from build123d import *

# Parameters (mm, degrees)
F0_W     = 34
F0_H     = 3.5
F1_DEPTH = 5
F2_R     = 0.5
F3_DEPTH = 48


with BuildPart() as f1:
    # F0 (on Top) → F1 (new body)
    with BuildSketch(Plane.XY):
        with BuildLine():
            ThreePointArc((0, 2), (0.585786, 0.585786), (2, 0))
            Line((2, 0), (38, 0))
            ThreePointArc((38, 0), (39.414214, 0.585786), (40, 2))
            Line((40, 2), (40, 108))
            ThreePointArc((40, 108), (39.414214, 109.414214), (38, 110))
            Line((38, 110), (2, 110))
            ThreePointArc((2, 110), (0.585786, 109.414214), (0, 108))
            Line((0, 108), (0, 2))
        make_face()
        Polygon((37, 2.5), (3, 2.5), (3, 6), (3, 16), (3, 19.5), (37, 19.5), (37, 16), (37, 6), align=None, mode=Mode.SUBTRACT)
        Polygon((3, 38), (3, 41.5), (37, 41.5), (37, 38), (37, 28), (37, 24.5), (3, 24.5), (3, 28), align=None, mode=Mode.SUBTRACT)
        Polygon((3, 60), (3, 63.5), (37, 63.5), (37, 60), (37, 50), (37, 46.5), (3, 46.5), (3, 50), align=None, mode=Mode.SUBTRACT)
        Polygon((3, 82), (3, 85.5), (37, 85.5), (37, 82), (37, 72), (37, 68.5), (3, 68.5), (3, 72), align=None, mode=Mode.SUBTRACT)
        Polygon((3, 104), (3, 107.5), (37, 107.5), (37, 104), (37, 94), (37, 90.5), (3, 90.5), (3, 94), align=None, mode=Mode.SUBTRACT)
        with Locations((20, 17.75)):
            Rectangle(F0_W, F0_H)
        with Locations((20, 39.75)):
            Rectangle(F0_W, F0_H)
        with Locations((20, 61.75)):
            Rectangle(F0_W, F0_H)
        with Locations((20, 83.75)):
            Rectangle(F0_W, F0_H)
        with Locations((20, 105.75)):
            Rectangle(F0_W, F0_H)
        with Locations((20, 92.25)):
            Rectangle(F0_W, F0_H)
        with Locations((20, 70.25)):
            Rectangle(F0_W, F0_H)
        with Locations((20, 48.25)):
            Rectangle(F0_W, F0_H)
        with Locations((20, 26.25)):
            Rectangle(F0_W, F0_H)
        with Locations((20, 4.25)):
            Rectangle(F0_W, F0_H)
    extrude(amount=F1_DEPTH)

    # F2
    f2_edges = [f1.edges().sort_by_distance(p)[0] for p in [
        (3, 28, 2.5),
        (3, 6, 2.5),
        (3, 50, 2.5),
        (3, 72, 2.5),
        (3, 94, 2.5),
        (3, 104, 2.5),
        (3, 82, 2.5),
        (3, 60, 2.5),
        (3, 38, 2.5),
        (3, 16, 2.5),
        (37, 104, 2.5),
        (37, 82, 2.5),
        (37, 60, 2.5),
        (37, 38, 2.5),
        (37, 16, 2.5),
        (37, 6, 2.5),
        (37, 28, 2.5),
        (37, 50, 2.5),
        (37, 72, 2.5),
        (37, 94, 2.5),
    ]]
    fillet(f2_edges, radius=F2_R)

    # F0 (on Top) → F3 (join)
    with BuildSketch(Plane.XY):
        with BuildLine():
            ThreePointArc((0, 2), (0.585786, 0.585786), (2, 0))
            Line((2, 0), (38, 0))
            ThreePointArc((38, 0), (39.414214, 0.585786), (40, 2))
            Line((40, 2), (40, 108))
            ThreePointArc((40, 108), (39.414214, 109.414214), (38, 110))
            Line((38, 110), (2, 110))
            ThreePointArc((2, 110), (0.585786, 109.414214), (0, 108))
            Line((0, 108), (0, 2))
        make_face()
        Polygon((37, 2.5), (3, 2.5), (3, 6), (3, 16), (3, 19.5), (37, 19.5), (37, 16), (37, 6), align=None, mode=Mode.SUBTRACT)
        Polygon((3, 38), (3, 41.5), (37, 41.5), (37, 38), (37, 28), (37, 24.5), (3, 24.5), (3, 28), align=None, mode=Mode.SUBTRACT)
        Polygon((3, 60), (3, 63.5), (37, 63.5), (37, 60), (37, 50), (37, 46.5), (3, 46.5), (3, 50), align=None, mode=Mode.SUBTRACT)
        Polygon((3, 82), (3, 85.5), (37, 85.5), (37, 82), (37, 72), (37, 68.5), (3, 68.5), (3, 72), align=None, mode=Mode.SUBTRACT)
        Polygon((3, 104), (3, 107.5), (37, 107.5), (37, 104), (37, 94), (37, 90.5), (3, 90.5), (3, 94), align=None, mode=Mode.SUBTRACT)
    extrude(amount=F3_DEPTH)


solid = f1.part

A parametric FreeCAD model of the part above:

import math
import FreeCAD as App
import Part
import Sketcher
from FreeCAD import Vector
Q = App.Units.Quantity


def edges_at(feature, points):
    """Names of the edges that pass closest to the given points."""
    edges = feature.Shape.Edges
    near = lambda p: min(range(len(edges)), key=lambda i: edges[i].distToShape(Part.Vertex(*p))[0])
    return sorted({f"Edge{near(p) + 1}" for p in points})

doc = App.newDocument("Part")
body = doc.addObject("PartDesign::Body", "Body")

# Sketch on XY plane
sketch1 = body.newObject("Sketcher::SketchObject", "Sketch")
sketch1.AttachmentSupport = (doc.getObject("XY_Plane"), [""])
sketch1.MapMode = "FlatFace"
sketch1.addGeometry(Part.ArcOfCircle(Part.Circle(Vector(2, 2, 0), Vector(0, 0, 1), 2), math.radians(180), math.radians(270)), False)
sketch1.addGeometry(Part.LineSegment(Vector(2, 0, 0), Vector(38, 0, 0)), False)
sketch1.addGeometry(Part.ArcOfCircle(Part.Circle(Vector(38, 2, 0), Vector(0, 0, 1), 2), math.radians(-90), math.radians(0)), False)
sketch1.addGeometry(Part.LineSegment(Vector(40, 2, 0), Vector(40, 108, 0)), False)
sketch1.addGeometry(Part.ArcOfCircle(Part.Circle(Vector(38, 108, 0), Vector(0, 0, 1), 2), math.radians(0), math.radians(90)), False)
sketch1.addGeometry(Part.LineSegment(Vector(38, 110, 0), Vector(2, 110, 0)), False)
sketch1.addGeometry(Part.ArcOfCircle(Part.Circle(Vector(2, 108, 0), Vector(0, 0, 1), 2), math.radians(90), math.radians(180)), False)
sketch1.addGeometry(Part.LineSegment(Vector(0, 108, 0), Vector(0, 2, 0)), False)
sketch1.addGeometry(Part.LineSegment(Vector(37, 16, 0), Vector(37, 6, 0)), False)
sketch1.addGeometry(Part.LineSegment(Vector(37, 6, 0), Vector(3, 6, 0)), False)
sketch1.addGeometry(Part.LineSegment(Vector(3, 6, 0), Vector(3, 16, 0)), False)
sketch1.addGeometry(Part.LineSegment(Vector(3, 16, 0), Vector(37, 16, 0)), False)
sketch1.addGeometry(Part.LineSegment(Vector(3, 28, 0), Vector(3, 38, 0)), False)
sketch1.addGeometry(Part.LineSegment(Vector(3, 38, 0), Vector(37, 38, 0)), False)
sketch1.addGeometry(Part.LineSegment(Vector(37, 38, 0), Vector(37, 28, 0)), False)
sketch1.addGeometry(Part.LineSegment(Vector(37, 28, 0), Vector(3, 28, 0)), False)
sketch1.addGeometry(Part.LineSegment(Vector(3, 50, 0), Vector(3, 60, 0)), False)
sketch1.addGeometry(Part.LineSegment(Vector(3, 60, 0), Vector(37, 60, 0)), False)
sketch1.addGeometry(Part.LineSegment(Vector(37, 60, 0), Vector(37, 50, 0)), False)
sketch1.addGeometry(Part.LineSegment(Vector(37, 50, 0), Vector(3, 50, 0)), False)
sketch1.addGeometry(Part.LineSegment(Vector(3, 72, 0), Vector(3, 82, 0)), False)
sketch1.addGeometry(Part.LineSegment(Vector(3, 82, 0), Vector(37, 82, 0)), False)
sketch1.addGeometry(Part.LineSegment(Vector(37, 82, 0), Vector(37, 72, 0)), False)
sketch1.addGeometry(Part.LineSegment(Vector(37, 72, 0), Vector(3, 72, 0)), False)
sketch1.addGeometry(Part.LineSegment(Vector(3, 94, 0), Vector(3, 104, 0)), False)
sketch1.addGeometry(Part.LineSegment(Vector(3, 104, 0), Vector(37, 104, 0)), False)
sketch1.addGeometry(Part.LineSegment(Vector(37, 104, 0), Vector(37, 94, 0)), False)
sketch1.addGeometry(Part.LineSegment(Vector(37, 94, 0), Vector(3, 94, 0)), False)
sketch1.addConstraint(Sketcher.Constraint("Tangent", 0, 2, 1, 1))
sketch1.addConstraint(Sketcher.Constraint("Tangent", 1, 2, 2, 1))
sketch1.addConstraint(Sketcher.Constraint("Tangent", 2, 2, 3, 1))
sketch1.addConstraint(Sketcher.Constraint("Tangent", 3, 2, 4, 1))
sketch1.addConstraint(Sketcher.Constraint("Tangent", 4, 2, 5, 1))
sketch1.addConstraint(Sketcher.Constraint("Tangent", 5, 2, 6, 1))
sketch1.addConstraint(Sketcher.Constraint("Tangent", 6, 2, 7, 1))
sketch1.addConstraint(Sketcher.Constraint("Tangent", 7, 2, 0, 1))
sketch1.addConstraint(Sketcher.Constraint("Coincident", 8, 2, 9, 1))
sketch1.addConstraint(Sketcher.Constraint("Coincident", 9, 2, 10, 1))
sketch1.addConstraint(Sketcher.Constraint("Coincident", 10, 2, 11, 1))
sketch1.addConstraint(Sketcher.Constraint("Coincident", 11, 2, 8, 1))
sketch1.addConstraint(Sketcher.Constraint("Coincident", 12, 2, 13, 1))
sketch1.addConstraint(Sketcher.Constraint("Coincident", 13, 2, 14, 1))
sketch1.addConstraint(Sketcher.Constraint("Coincident", 14, 2, 15, 1))
sketch1.addConstraint(Sketcher.Constraint("Coincident", 15, 2, 12, 1))
sketch1.addConstraint(Sketcher.Constraint("Coincident", 16, 2, 17, 1))
sketch1.addConstraint(Sketcher.Constraint("Coincident", 17, 2, 18, 1))
sketch1.addConstraint(Sketcher.Constraint("Coincident", 18, 2, 19, 1))
sketch1.addConstraint(Sketcher.Constraint("Coincident", 19, 2, 16, 1))
sketch1.addConstraint(Sketcher.Constraint("Coincident", 20, 2, 21, 1))
sketch1.addConstraint(Sketcher.Constraint("Coincident", 21, 2, 22, 1))
sketch1.addConstraint(Sketcher.Constraint("Coincident", 22, 2, 23, 1))
sketch1.addConstraint(Sketcher.Constraint("Coincident", 23, 2, 20, 1))
sketch1.addConstraint(Sketcher.Constraint("Coincident", 24, 2, 25, 1))
sketch1.addConstraint(Sketcher.Constraint("Coincident", 25, 2, 26, 1))
sketch1.addConstraint(Sketcher.Constraint("Coincident", 26, 2, 27, 1))
sketch1.addConstraint(Sketcher.Constraint("Coincident", 27, 2, 24, 1))
sketch1.addConstraint(Sketcher.Constraint("Horizontal", 1))
sketch1.addConstraint(Sketcher.Constraint("Vertical", 3))
sketch1.addConstraint(Sketcher.Constraint("Horizontal", 5))
sketch1.addConstraint(Sketcher.Constraint("Vertical", 7))
sketch1.addConstraint(Sketcher.Constraint("Vertical", 8))
sketch1.addConstraint(Sketcher.Constraint("Horizontal", 9))
sketch1.addConstraint(Sketcher.Constraint("Vertical", 10))
sketch1.addConstraint(Sketcher.Constraint("Horizontal", 11))
sketch1.addConstraint(Sketcher.Constraint("Vertical", 12))
sketch1.addConstraint(Sketcher.Constraint("Horizontal", 13))
sketch1.addConstraint(Sketcher.Constraint("Vertical", 14))
sketch1.addConstraint(Sketcher.Constraint("Horizontal", 15))
sketch1.addConstraint(Sketcher.Constraint("Vertical", 16))
sketch1.addConstraint(Sketcher.Constraint("Horizontal", 17))
sketch1.addConstraint(Sketcher.Constraint("Vertical", 18))
sketch1.addConstraint(Sketcher.Constraint("Horizontal", 19))
sketch1.addConstraint(Sketcher.Constraint("Vertical", 20))
sketch1.addConstraint(Sketcher.Constraint("Horizontal", 21))
sketch1.addConstraint(Sketcher.Constraint("Vertical", 22))
sketch1.addConstraint(Sketcher.Constraint("Horizontal", 23))
sketch1.addConstraint(Sketcher.Constraint("Vertical", 24))
sketch1.addConstraint(Sketcher.Constraint("Horizontal", 25))
sketch1.addConstraint(Sketcher.Constraint("Vertical", 26))
sketch1.addConstraint(Sketcher.Constraint("Horizontal", 27))
sketch1.addConstraint(Sketcher.Constraint("Equal", 0, 2))
sketch1.addConstraint(Sketcher.Constraint("Equal", 2, 4))
sketch1.addConstraint(Sketcher.Constraint("Equal", 4, 6))
sketch1.addConstraint(Sketcher.Constraint("PointOnObject", 0, 2, -1))
sketch1.addConstraint(Sketcher.Constraint("PointOnObject", 6, 2, -2))
sketch1.addConstraint(Sketcher.Constraint("Vertical", 10, 2, 12, 2))
sketch1.addConstraint(Sketcher.Constraint("Vertical", 11, 2, 13, 2))
sketch1.addConstraint(Sketcher.Constraint("Vertical", 15, 2, 16, 2))
sketch1.addConstraint(Sketcher.Constraint("Vertical", 14, 2, 17, 2))
sketch1.addConstraint(Sketcher.Constraint("Vertical", 19, 2, 20, 2))
sketch1.addConstraint(Sketcher.Constraint("Vertical", 18, 2, 21, 2))
sketch1.addConstraint(Sketcher.Constraint("Vertical", 23, 2, 24, 2))
sketch1.addConstraint(Sketcher.Constraint("Vertical", 22, 2, 25, 2))
sketch1.addConstraint(Sketcher.Constraint("Equal", 10, 12))
sketch1.addConstraint(Sketcher.Constraint("Equal", 14, 16))
sketch1.addConstraint(Sketcher.Constraint("Equal", 18, 20))
sketch1.addConstraint(Sketcher.Constraint("Equal", 22, 24))
sketch1.addConstraint(Sketcher.Constraint("Radius", 0, Q("1.999999 mm")))
sketch1.addConstraint(Sketcher.Constraint("DistanceX", 1, 1, 1, 2, Q("36 mm")))
sketch1.addConstraint(Sketcher.Constraint("DistanceX", 9, 2, 9, 1, Q("34 mm")))
sketch1.addConstraint(Sketcher.Constraint("DistanceY", 3, 1, 3, 2, Q("106 mm")))
sketch1.addConstraint(Sketcher.Constraint("DistanceY", 8, 2, 8, 1, Q("10 mm")))
sketch1.addConstraint(Sketcher.Constraint("DistanceX", -1, 1, 8, 2, Q("37 mm")))
sketch1.addConstraint(Sketcher.Constraint("DistanceY", -1, 1, 8, 2, Q("6 mm")))
sketch1.addConstraint(Sketcher.Constraint("DistanceY", -1, 1, 12, 2, Q("38 mm")))
sketch1.addConstraint(Sketcher.Constraint("DistanceY", -1, 1, 16, 2, Q("60 mm")))
sketch1.addConstraint(Sketcher.Constraint("DistanceY", -1, 1, 20, 2, Q("82 mm")))
sketch1.addConstraint(Sketcher.Constraint("DistanceY", -1, 1, 24, 2, Q("104 mm")))
pad1 = body.newObject("PartDesign::Pad", "Pad")
pad1.Profile = sketch1
pad1.Length = 5
doc.recompute()

fillet = body.newObject("PartDesign::Fillet", "Fillet")
fillet.Base = (pad1, edges_at(pad1, [
    (3, 28, 2.5),
    (3, 6, 2.5),
    (3, 50, 2.5),
    (3, 72, 2.5),
    (3, 94, 2.5),
    (3, 104, 2.5),
    (3, 82, 2.5),
    (3, 60, 2.5),
    (3, 38, 2.5),
    (3, 16, 2.5),
    (37, 104, 2.5),
    (37, 82, 2.5),
    (37, 60, 2.5),
    (37, 38, 2.5),
    (37, 16, 2.5),
    (37, 6, 2.5),
    (37, 28, 2.5),
    (37, 50, 2.5),
    (37, 72, 2.5),
    (37, 94, 2.5),
]))
fillet.Radius = 0.5

# Sketch on XY plane
sketch2 = body.newObject("Sketcher::SketchObject", "Sketch001")
sketch2.AttachmentSupport = (doc.getObject("XY_Plane"), [""])
sketch2.MapMode = "FlatFace"
sketch2.addGeometry(Part.ArcOfCircle(Part.Circle(Vector(2, 2, 0), Vector(0, 0, 1), 2), math.radians(180), math.radians(270)), False)
sketch2.addGeometry(Part.LineSegment(Vector(2, 0, 0), Vector(38, 0, 0)), False)
sketch2.addGeometry(Part.ArcOfCircle(Part.Circle(Vector(38, 2, 0), Vector(0, 0, 1), 2), math.radians(-90), math.radians(0)), False)
sketch2.addGeometry(Part.LineSegment(Vector(40, 2, 0), Vector(40, 108, 0)), False)
sketch2.addGeometry(Part.ArcOfCircle(Part.Circle(Vector(38, 108, 0), Vector(0, 0, 1), 2), math.radians(0), math.radians(90)), False)
sketch2.addGeometry(Part.LineSegment(Vector(38, 110, 0), Vector(2, 110, 0)), False)
sketch2.addGeometry(Part.ArcOfCircle(Part.Circle(Vector(2, 108, 0), Vector(0, 0, 1), 2), math.radians(90), math.radians(180)), False)
sketch2.addGeometry(Part.LineSegment(Vector(0, 108, 0), Vector(0, 2, 0)), False)
sketch2.addGeometry(Part.LineSegment(Vector(37, 19.5, 0), Vector(37, 2.5, 0)), False)
sketch2.addGeometry(Part.LineSegment(Vector(37, 2.5, 0), Vector(3, 2.5, 0)), False)
sketch2.addGeometry(Part.LineSegment(Vector(3, 2.5, 0), Vector(3, 19.5, 0)), False)
sketch2.addGeometry(Part.LineSegment(Vector(3, 19.5, 0), Vector(37, 19.5, 0)), False)
sketch2.addGeometry(Part.LineSegment(Vector(3, 24.5, 0), Vector(3, 41.5, 0)), False)
sketch2.addGeometry(Part.LineSegment(Vector(3, 41.5, 0), Vector(37, 41.5, 0)), False)
sketch2.addGeometry(Part.LineSegment(Vector(37, 41.5, 0), Vector(37, 24.5, 0)), False)
sketch2.addGeometry(Part.LineSegment(Vector(37, 24.5, 0), Vector(3, 24.5, 0)), False)
sketch2.addGeometry(Part.LineSegment(Vector(3, 46.5, 0), Vector(3, 63.5, 0)), False)
sketch2.addGeometry(Part.LineSegment(Vector(3, 63.5, 0), Vector(37, 63.5, 0)), False)
sketch2.addGeometry(Part.LineSegment(Vector(37, 63.5, 0), Vector(37, 46.5, 0)), False)
sketch2.addGeometry(Part.LineSegment(Vector(37, 46.5, 0), Vector(3, 46.5, 0)), False)
sketch2.addGeometry(Part.LineSegment(Vector(3, 68.5, 0), Vector(3, 85.5, 0)), False)
sketch2.addGeometry(Part.LineSegment(Vector(3, 85.5, 0), Vector(37, 85.5, 0)), False)
sketch2.addGeometry(Part.LineSegment(Vector(37, 85.5, 0), Vector(37, 68.5, 0)), False)
sketch2.addGeometry(Part.LineSegment(Vector(37, 68.5, 0), Vector(3, 68.5, 0)), False)
sketch2.addGeometry(Part.LineSegment(Vector(3, 90.5, 0), Vector(3, 107.5, 0)), False)
sketch2.addGeometry(Part.LineSegment(Vector(3, 107.5, 0), Vector(37, 107.5, 0)), False)
sketch2.addGeometry(Part.LineSegment(Vector(37, 107.5, 0), Vector(37, 90.5, 0)), False)
sketch2.addGeometry(Part.LineSegment(Vector(37, 90.5, 0), Vector(3, 90.5, 0)), False)
sketch2.addConstraint(Sketcher.Constraint("Tangent", 0, 2, 1, 1))
sketch2.addConstraint(Sketcher.Constraint("Tangent", 1, 2, 2, 1))
sketch2.addConstraint(Sketcher.Constraint("Tangent", 2, 2, 3, 1))
sketch2.addConstraint(Sketcher.Constraint("Tangent", 3, 2, 4, 1))
sketch2.addConstraint(Sketcher.Constraint("Tangent", 4, 2, 5, 1))
sketch2.addConstraint(Sketcher.Constraint("Tangent", 5, 2, 6, 1))
sketch2.addConstraint(Sketcher.Constraint("Tangent", 6, 2, 7, 1))
sketch2.addConstraint(Sketcher.Constraint("Tangent", 7, 2, 0, 1))
sketch2.addConstraint(Sketcher.Constraint("Coincident", 8, 2, 9, 1))
sketch2.addConstraint(Sketcher.Constraint("Coincident", 9, 2, 10, 1))
sketch2.addConstraint(Sketcher.Constraint("Coincident", 10, 2, 11, 1))
sketch2.addConstraint(Sketcher.Constraint("Coincident", 11, 2, 8, 1))
sketch2.addConstraint(Sketcher.Constraint("Coincident", 12, 2, 13, 1))
sketch2.addConstraint(Sketcher.Constraint("Coincident", 13, 2, 14, 1))
sketch2.addConstraint(Sketcher.Constraint("Coincident", 14, 2, 15, 1))
sketch2.addConstraint(Sketcher.Constraint("Coincident", 15, 2, 12, 1))
sketch2.addConstraint(Sketcher.Constraint("Coincident", 16, 2, 17, 1))
sketch2.addConstraint(Sketcher.Constraint("Coincident", 17, 2, 18, 1))
sketch2.addConstraint(Sketcher.Constraint("Coincident", 18, 2, 19, 1))
sketch2.addConstraint(Sketcher.Constraint("Coincident", 19, 2, 16, 1))
sketch2.addConstraint(Sketcher.Constraint("Coincident", 20, 2, 21, 1))
sketch2.addConstraint(Sketcher.Constraint("Coincident", 21, 2, 22, 1))
sketch2.addConstraint(Sketcher.Constraint("Coincident", 22, 2, 23, 1))
sketch2.addConstraint(Sketcher.Constraint("Coincident", 23, 2, 20, 1))
sketch2.addConstraint(Sketcher.Constraint("Coincident", 24, 2, 25, 1))
sketch2.addConstraint(Sketcher.Constraint("Coincident", 25, 2, 26, 1))
sketch2.addConstraint(Sketcher.Constraint("Coincident", 26, 2, 27, 1))
sketch2.addConstraint(Sketcher.Constraint("Coincident", 27, 2, 24, 1))
sketch2.addConstraint(Sketcher.Constraint("Horizontal", 1))
sketch2.addConstraint(Sketcher.Constraint("Vertical", 3))
sketch2.addConstraint(Sketcher.Constraint("Horizontal", 5))
sketch2.addConstraint(Sketcher.Constraint("Vertical", 7))
sketch2.addConstraint(Sketcher.Constraint("Vertical", 8))
sketch2.addConstraint(Sketcher.Constraint("Horizontal", 9))
sketch2.addConstraint(Sketcher.Constraint("Vertical", 10))
sketch2.addConstraint(Sketcher.Constraint("Horizontal", 11))
sketch2.addConstraint(Sketcher.Constraint("Vertical", 12))
sketch2.addConstraint(Sketcher.Constraint("Horizontal", 13))
sketch2.addConstraint(Sketcher.Constraint("Vertical", 14))
sketch2.addConstraint(Sketcher.Constraint("Horizontal", 15))
sketch2.addConstraint(Sketcher.Constraint("Vertical", 16))
sketch2.addConstraint(Sketcher.Constraint("Horizontal", 17))
sketch2.addConstraint(Sketcher.Constraint("Vertical", 18))
sketch2.addConstraint(Sketcher.Constraint("Horizontal", 19))
sketch2.addConstraint(Sketcher.Constraint("Vertical", 20))
sketch2.addConstraint(Sketcher.Constraint("Horizontal", 21))
sketch2.addConstraint(Sketcher.Constraint("Vertical", 22))
sketch2.addConstraint(Sketcher.Constraint("Horizontal", 23))
sketch2.addConstraint(Sketcher.Constraint("Vertical", 24))
sketch2.addConstraint(Sketcher.Constraint("Horizontal", 25))
sketch2.addConstraint(Sketcher.Constraint("Vertical", 26))
sketch2.addConstraint(Sketcher.Constraint("Horizontal", 27))
sketch2.addConstraint(Sketcher.Constraint("Equal", 0, 2))
sketch2.addConstraint(Sketcher.Constraint("Equal", 2, 4))
sketch2.addConstraint(Sketcher.Constraint("Equal", 4, 6))
sketch2.addConstraint(Sketcher.Constraint("PointOnObject", 0, 2, -1))
sketch2.addConstraint(Sketcher.Constraint("PointOnObject", 6, 2, -2))
sketch2.addConstraint(Sketcher.Constraint("Vertical", 10, 2, 12, 2))
sketch2.addConstraint(Sketcher.Constraint("Vertical", 11, 2, 13, 2))
sketch2.addConstraint(Sketcher.Constraint("Vertical", 15, 2, 16, 2))
sketch2.addConstraint(Sketcher.Constraint("Vertical", 14, 2, 17, 2))
sketch2.addConstraint(Sketcher.Constraint("Vertical", 19, 2, 20, 2))
sketch2.addConstraint(Sketcher.Constraint("Vertical", 18, 2, 21, 2))
sketch2.addConstraint(Sketcher.Constraint("Vertical", 23, 2, 24, 2))
sketch2.addConstraint(Sketcher.Constraint("Vertical", 22, 2, 25, 2))
sketch2.addConstraint(Sketcher.Constraint("Equal", 10, 12))
sketch2.addConstraint(Sketcher.Constraint("Equal", 14, 16))
sketch2.addConstraint(Sketcher.Constraint("Equal", 18, 20))
sketch2.addConstraint(Sketcher.Constraint("Equal", 22, 24))
sketch2.addConstraint(Sketcher.Constraint("Radius", 0, Q("1.999999 mm")))
sketch2.addConstraint(Sketcher.Constraint("DistanceX", 1, 1, 1, 2, Q("36 mm")))
sketch2.addConstraint(Sketcher.Constraint("DistanceX", 9, 2, 9, 1, Q("34 mm")))
sketch2.addConstraint(Sketcher.Constraint("DistanceY", 3, 1, 3, 2, Q("106 mm")))
sketch2.addConstraint(Sketcher.Constraint("DistanceY", 8, 2, 8, 1, Q("17 mm")))
sketch2.addConstraint(Sketcher.Constraint("DistanceX", -1, 1, 8, 2, Q("37 mm")))
sketch2.addConstraint(Sketcher.Constraint("DistanceY", 10, 2, 12, 2, Q("22 mm")))
sketch2.addConstraint(Sketcher.Constraint("DistanceY", 12, 2, 16, 2, Q("22 mm")))
sketch2.addConstraint(Sketcher.Constraint("DistanceY", 16, 2, 20, 2, Q("22 mm")))
sketch2.addConstraint(Sketcher.Constraint("DistanceY", 20, 2, 24, 2, Q("22 mm")))
sketch2.addConstraint(Sketcher.Constraint("DistanceY", -1, 1, 8, 2, Q("2.5 mm")))
pad2 = body.newObject("PartDesign::Pad", "Pad001")
pad2.Profile = sketch2
pad2.Length = 48

doc.recompute()
